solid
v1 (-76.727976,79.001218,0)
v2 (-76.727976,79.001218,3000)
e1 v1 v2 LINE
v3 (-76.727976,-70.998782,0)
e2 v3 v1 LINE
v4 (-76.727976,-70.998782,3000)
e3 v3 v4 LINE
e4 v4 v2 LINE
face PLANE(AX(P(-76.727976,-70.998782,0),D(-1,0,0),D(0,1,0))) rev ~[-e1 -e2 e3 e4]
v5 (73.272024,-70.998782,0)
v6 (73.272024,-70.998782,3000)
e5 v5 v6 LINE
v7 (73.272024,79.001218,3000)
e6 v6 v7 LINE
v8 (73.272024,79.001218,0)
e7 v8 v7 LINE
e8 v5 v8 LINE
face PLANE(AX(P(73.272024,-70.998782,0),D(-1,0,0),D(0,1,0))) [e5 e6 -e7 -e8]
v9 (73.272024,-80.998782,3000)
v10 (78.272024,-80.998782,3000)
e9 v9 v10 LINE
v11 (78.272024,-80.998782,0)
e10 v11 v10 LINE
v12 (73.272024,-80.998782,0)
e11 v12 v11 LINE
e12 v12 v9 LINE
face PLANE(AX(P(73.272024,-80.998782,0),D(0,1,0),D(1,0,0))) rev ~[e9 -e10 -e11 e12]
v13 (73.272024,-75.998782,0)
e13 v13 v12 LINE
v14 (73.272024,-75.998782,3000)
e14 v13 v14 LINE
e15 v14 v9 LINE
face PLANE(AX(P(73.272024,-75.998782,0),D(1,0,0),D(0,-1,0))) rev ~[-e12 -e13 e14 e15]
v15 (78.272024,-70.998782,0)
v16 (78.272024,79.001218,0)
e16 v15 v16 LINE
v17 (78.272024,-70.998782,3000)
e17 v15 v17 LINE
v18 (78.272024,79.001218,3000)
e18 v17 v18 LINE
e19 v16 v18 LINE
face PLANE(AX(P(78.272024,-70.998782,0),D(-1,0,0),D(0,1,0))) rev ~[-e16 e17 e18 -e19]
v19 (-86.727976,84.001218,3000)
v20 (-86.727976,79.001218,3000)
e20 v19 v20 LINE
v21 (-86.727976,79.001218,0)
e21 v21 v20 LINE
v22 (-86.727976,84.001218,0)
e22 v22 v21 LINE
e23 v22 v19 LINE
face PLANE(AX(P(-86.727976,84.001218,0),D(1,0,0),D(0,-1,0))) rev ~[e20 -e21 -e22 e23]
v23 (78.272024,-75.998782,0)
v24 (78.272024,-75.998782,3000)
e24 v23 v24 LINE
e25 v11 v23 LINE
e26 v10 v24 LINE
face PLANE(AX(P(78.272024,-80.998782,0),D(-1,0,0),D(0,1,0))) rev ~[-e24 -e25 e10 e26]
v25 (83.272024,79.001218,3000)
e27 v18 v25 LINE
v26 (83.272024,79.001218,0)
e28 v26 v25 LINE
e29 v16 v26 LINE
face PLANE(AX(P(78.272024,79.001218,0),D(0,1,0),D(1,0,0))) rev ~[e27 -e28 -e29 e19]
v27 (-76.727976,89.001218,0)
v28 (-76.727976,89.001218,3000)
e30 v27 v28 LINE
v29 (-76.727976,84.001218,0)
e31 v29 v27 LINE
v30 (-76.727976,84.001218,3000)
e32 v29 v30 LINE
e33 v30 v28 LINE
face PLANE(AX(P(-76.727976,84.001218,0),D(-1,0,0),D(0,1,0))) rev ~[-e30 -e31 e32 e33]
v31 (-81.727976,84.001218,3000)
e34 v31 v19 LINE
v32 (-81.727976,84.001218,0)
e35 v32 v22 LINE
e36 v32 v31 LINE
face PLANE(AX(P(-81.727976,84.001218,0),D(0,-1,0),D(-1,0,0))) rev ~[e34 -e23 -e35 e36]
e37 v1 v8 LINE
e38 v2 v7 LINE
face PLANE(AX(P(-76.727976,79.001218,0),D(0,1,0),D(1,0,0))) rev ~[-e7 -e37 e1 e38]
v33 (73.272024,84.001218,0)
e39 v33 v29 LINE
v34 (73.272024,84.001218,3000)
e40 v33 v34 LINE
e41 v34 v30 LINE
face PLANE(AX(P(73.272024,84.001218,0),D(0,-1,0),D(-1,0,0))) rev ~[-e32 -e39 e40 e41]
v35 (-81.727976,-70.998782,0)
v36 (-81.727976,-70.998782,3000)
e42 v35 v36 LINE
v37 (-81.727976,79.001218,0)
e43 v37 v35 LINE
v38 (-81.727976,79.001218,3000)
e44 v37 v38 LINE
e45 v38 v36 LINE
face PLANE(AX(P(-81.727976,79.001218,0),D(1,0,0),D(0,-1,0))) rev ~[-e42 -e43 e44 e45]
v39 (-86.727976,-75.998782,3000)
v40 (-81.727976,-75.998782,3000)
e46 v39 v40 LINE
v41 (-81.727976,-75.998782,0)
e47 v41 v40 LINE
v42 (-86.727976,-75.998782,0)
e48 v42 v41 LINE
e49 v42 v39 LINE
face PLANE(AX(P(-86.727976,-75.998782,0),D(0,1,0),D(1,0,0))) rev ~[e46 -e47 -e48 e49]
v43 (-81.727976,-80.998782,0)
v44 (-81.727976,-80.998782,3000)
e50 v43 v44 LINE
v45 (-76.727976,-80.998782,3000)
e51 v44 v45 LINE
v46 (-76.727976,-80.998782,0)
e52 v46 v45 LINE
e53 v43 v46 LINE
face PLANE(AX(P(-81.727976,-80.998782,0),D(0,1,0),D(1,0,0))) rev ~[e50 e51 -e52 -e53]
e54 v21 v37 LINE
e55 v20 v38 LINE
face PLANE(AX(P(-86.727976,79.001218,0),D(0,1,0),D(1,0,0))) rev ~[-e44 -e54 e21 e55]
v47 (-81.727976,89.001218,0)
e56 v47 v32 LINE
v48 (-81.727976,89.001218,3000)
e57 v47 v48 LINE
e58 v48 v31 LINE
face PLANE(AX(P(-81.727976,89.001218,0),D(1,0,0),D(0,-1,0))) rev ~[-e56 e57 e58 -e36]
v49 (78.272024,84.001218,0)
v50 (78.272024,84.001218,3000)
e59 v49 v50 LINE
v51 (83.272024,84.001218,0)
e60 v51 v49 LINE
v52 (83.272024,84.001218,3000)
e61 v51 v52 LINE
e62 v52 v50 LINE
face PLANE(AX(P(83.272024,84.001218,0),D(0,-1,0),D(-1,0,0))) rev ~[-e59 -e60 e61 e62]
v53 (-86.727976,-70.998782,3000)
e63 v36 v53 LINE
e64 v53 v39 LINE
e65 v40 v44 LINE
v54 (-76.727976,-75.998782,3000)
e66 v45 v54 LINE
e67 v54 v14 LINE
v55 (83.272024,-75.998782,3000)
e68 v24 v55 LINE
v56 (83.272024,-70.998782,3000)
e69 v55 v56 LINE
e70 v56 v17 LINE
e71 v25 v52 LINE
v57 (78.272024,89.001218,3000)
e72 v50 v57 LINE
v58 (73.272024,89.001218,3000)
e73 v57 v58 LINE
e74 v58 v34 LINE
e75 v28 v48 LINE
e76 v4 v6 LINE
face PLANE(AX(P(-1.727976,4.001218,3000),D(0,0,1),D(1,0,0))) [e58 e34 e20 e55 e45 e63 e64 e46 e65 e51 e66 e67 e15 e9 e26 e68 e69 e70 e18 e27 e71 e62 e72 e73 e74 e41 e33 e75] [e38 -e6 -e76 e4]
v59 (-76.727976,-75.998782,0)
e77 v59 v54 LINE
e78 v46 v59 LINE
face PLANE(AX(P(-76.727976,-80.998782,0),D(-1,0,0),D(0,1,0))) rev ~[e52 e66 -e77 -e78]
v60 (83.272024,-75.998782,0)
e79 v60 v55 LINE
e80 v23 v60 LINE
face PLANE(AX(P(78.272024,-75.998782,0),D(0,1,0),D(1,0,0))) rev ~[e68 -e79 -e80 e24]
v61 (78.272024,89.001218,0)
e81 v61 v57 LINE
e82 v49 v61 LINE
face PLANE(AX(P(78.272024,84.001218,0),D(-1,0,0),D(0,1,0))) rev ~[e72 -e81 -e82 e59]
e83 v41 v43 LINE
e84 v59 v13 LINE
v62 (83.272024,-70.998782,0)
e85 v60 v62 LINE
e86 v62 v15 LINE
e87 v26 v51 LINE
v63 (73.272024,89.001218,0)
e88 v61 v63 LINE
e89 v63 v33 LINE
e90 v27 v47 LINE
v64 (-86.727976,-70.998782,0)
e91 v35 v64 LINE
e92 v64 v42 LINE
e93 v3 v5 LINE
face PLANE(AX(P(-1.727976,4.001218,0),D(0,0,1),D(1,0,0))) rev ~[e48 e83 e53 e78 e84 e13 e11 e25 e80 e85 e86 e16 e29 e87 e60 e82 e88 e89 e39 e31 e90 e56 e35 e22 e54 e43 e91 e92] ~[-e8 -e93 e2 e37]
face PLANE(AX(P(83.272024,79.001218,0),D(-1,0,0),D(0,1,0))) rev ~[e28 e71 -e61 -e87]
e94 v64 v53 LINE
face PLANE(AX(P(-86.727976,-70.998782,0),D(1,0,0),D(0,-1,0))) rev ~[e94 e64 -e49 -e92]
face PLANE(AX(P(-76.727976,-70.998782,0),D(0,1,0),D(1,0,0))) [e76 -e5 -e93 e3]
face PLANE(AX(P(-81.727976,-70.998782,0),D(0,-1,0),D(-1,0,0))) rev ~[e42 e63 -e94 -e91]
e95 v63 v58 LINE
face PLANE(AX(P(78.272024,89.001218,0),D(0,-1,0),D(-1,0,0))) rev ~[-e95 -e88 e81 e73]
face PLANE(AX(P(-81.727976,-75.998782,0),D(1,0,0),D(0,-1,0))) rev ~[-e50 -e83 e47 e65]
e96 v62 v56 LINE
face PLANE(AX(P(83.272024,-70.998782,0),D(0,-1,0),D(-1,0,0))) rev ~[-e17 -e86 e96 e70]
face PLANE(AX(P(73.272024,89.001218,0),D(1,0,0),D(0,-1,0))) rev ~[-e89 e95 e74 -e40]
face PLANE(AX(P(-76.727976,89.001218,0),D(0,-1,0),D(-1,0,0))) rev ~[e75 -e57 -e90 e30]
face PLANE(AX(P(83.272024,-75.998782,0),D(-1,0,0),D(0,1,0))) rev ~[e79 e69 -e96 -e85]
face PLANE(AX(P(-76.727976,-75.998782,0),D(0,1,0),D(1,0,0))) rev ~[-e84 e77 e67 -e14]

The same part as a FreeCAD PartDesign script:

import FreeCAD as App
import Part
import Sketcher
Q = App.Units.Quantity


def add_polygon(sketch, points):
    """Adds a closed chain of lines whose ends are joined by coincident constraints."""
    first, n = sketch.GeometryCount, len(points)
    for a, b in zip(points, points[1:] + points[:1]):
        sketch.addGeometry(Part.LineSegment(App.Vector(*a, 0), App.Vector(*b, 0)), False)
    for i in range(n):
        sketch.addConstraint(Sketcher.Constraint("Coincident", first + i, 2, first + (i + 1) % n, 1))

doc = App.newDocument("Part")
body = doc.addObject("PartDesign::Body", "Body")

sketch1 = doc.addObject("Sketcher::SketchObject", "Sketch")
body.addObject(sketch1)
sketch1.AttachmentSupport = (doc.XY_Plane, [""])
sketch1.MapMode = "FlatFace"
add_polygon(sketch1, [(-81.727976, 84.001218), (-86.727976, 84.001218), (-86.727976, 79.001218), (-81.727976, 79.001218), (-81.727976, -70.998782), (-86.727976, -70.998782), (-86.727976, -75.998782), (-81.727976, -75.998782), (-81.727976, -80.998782), (-76.727976, -80.998782), (-76.727976, -75.998782), (73.272024, -75.998782), (73.272024, -80.998782), (78.272024, -80.998782), (78.272024, -75.998782), (83.272024, -75.998782), (83.272024, -70.998782), (78.272024, -70.998782), (78.272024, 79.001218), (83.272024, 79.001218), (83.272024, 84.001218), (78.272024, 84.001218), (78.272024, 89.001218), (73.272024, 89.001218), (73.272024, 84.001218), (-76.727976, 84.001218), (-76.727976, 89.001218), (-81.727976, 89.001218)])
add_polygon(sketch1, [(73.272024, -70.998782), (-76.727976, -70.998782), (-76.727976, 79.001218), (73.272024, 79.001218)])
sketch1.addConstraint(Sketcher.Constraint("Horizontal", 0))
sketch1.addConstraint(Sketcher.Constraint("Vertical", 1))
sketch1.addConstraint(Sketcher.Constraint("Horizontal", 2))
sketch1.addConstraint(Sketcher.Constraint("Vertical", 3))
sketch1.addConstraint(Sketcher.Constraint("Horizontal", 4))
sketch1.addConstraint(Sketcher.Constraint("Vertical", 5))
sketch1.addConstraint(Sketcher.Constraint("Horizontal", 6))
sketch1.addConstraint(Sketcher.Constraint("Vertical", 7))
sketch1.addConstraint(Sketcher.Constraint("Horizontal", 8))
sketch1.addConstraint(Sketcher.Constraint("Vertical", 9))
sketch1.addConstraint(Sketcher.Constraint("Horizontal", 10))
sketch1.addConstraint(Sketcher.Constraint("Vertical", 11))
sketch1.addConstraint(Sketcher.Constraint("Horizontal", 12))
sketch1.addConstraint(Sketcher.Constraint("Vertical", 13))
sketch1.addConstraint(Sketcher.Constraint("Horizontal", 14))
sketch1.addConstraint(Sketcher.Constraint("Vertical", 15))
sketch1.addConstraint(Sketcher.Constraint("Horizontal", 16))
sketch1.addConstraint(Sketcher.Constraint("Vertical", 17))
sketch1.addConstraint(Sketcher.Constraint("Horizontal", 18))
sketch1.addConstraint(Sketcher.Constraint("Vertical", 19))
sketch1.addConstraint(Sketcher.Constraint("Horizontal", 20))
sketch1.addConstraint(Sketcher.Constraint("Vertical", 21))
sketch1.addConstraint(Sketcher.Constraint("Horizontal", 22))
sketch1.addConstraint(Sketcher.Constraint("Vertical", 23))
sketch1.addConstraint(Sketcher.Constraint("Horizontal", 24))
sketch1.addConstraint(Sketcher.Constraint("Vertical", 25))
sketch1.addConstraint(Sketcher.Constraint("Horizontal", 26))
sketch1.addConstraint(Sketcher.Constraint("Vertical", 27))
sketch1.addConstraint(Sketcher.Constraint("Horizontal", 28))
sketch1.addConstraint(Sketcher.Constraint("Vertical", 29))
sketch1.addConstraint(Sketcher.Constraint("Horizontal", 30))
sketch1.addConstraint(Sketcher.Constraint("Vertical", 31))
sketch1.addConstraint(Sketcher.Constraint("Horizontal", 6, 2, 9, 2))
sketch1.addConstraint(Sketcher.Constraint("Horizontal", 8, 2, 11, 2))
sketch1.addConstraint(Sketcher.Constraint("Horizontal", 10, 2, 13, 2))
sketch1.addConstraint(Sketcher.Constraint("Horizontal", 4, 2, 15, 2))
sketch1.addConstraint(Sketcher.Constraint("Horizontal", 2, 2, 17, 2))
sketch1.addConstraint(Sketcher.Constraint("Horizontal", 0, 2, 19, 2))
sketch1.addConstraint(Sketcher.Constraint("Horizontal", 20, 2, 23, 2))
sketch1.addConstraint(Sketcher.Constraint("Horizontal", 22, 2, 25, 2))
sketch1.addConstraint(Sketcher.Constraint("Horizontal", 16, 2, 28, 2))
sketch1.addConstraint(Sketcher.Constraint("Horizontal", 18, 2, 29, 2))
sketch1.addConstraint(Sketcher.Constraint("Vertical", 1, 2, 4, 2))
sketch1.addConstraint(Sketcher.Constraint("Vertical", 3, 2, 6, 2))
sketch1.addConstraint(Sketcher.Constraint("Vertical", 13, 2, 16, 2))
sketch1.addConstraint(Sketcher.Constraint("Vertical", 15, 2, 18, 2))
sketch1.addConstraint(Sketcher.Constraint("Vertical", 17, 2, 20, 2))
sketch1.addConstraint(Sketcher.Constraint("Vertical", 11, 2, 22, 2))
sketch1.addConstraint(Sketcher.Constraint("Vertical", 9, 2, 24, 2))
sketch1.addConstraint(Sketcher.Constraint("Vertical", 7, 2, 26, 2))
sketch1.addConstraint(Sketcher.Constraint("Vertical", 25, 2, 28, 2))
sketch1.addConstraint(Sketcher.Constraint("Vertical", 23, 2, 30, 2))
sketch1.addConstraint(Sketcher.Constraint("Equal", 6, 8))
sketch1.addConstraint(Sketcher.Constraint("Equal", 8, 12))
sketch1.addConstraint(Sketcher.Constraint("Equal", 12, 14))
sketch1.addConstraint(Sketcher.Constraint("Equal", 26, 1))
sketch1.addConstraint(Sketcher.Constraint("Equal", 30, 3))
sketch1.addConstraint(Sketcher.Constraint("Equal", 1, 5))
sketch1.addConstraint(Sketcher.Constraint("Equal", 5, 7))
sketch1.addConstraint(Sketcher.Constraint("Equal", 19, 21))
sketch1.addConstraint(Sketcher.Constraint("DistanceX", 0, 2, 0, 1, Q("5 mm")))
sketch1.addConstraint(Sketcher.Constraint("DistanceX", 10, 1, 10, 2, Q("150 mm")))
sketch1.addConstraint(Sketcher.Constraint("DistanceX", 0, 2, -1, 1, Q("86.727976 mm")))
sketch1.addConstraint(Sketcher.Constraint("DistanceY", -1, 1, 0, 2, Q("84.001218 mm")))
pad1 = doc.addObject("PartDesign::Pad", "Pad")
body.addObject(pad1)
pad1.Profile = sketch1
pad1.Length = 3000

doc.recompute()
